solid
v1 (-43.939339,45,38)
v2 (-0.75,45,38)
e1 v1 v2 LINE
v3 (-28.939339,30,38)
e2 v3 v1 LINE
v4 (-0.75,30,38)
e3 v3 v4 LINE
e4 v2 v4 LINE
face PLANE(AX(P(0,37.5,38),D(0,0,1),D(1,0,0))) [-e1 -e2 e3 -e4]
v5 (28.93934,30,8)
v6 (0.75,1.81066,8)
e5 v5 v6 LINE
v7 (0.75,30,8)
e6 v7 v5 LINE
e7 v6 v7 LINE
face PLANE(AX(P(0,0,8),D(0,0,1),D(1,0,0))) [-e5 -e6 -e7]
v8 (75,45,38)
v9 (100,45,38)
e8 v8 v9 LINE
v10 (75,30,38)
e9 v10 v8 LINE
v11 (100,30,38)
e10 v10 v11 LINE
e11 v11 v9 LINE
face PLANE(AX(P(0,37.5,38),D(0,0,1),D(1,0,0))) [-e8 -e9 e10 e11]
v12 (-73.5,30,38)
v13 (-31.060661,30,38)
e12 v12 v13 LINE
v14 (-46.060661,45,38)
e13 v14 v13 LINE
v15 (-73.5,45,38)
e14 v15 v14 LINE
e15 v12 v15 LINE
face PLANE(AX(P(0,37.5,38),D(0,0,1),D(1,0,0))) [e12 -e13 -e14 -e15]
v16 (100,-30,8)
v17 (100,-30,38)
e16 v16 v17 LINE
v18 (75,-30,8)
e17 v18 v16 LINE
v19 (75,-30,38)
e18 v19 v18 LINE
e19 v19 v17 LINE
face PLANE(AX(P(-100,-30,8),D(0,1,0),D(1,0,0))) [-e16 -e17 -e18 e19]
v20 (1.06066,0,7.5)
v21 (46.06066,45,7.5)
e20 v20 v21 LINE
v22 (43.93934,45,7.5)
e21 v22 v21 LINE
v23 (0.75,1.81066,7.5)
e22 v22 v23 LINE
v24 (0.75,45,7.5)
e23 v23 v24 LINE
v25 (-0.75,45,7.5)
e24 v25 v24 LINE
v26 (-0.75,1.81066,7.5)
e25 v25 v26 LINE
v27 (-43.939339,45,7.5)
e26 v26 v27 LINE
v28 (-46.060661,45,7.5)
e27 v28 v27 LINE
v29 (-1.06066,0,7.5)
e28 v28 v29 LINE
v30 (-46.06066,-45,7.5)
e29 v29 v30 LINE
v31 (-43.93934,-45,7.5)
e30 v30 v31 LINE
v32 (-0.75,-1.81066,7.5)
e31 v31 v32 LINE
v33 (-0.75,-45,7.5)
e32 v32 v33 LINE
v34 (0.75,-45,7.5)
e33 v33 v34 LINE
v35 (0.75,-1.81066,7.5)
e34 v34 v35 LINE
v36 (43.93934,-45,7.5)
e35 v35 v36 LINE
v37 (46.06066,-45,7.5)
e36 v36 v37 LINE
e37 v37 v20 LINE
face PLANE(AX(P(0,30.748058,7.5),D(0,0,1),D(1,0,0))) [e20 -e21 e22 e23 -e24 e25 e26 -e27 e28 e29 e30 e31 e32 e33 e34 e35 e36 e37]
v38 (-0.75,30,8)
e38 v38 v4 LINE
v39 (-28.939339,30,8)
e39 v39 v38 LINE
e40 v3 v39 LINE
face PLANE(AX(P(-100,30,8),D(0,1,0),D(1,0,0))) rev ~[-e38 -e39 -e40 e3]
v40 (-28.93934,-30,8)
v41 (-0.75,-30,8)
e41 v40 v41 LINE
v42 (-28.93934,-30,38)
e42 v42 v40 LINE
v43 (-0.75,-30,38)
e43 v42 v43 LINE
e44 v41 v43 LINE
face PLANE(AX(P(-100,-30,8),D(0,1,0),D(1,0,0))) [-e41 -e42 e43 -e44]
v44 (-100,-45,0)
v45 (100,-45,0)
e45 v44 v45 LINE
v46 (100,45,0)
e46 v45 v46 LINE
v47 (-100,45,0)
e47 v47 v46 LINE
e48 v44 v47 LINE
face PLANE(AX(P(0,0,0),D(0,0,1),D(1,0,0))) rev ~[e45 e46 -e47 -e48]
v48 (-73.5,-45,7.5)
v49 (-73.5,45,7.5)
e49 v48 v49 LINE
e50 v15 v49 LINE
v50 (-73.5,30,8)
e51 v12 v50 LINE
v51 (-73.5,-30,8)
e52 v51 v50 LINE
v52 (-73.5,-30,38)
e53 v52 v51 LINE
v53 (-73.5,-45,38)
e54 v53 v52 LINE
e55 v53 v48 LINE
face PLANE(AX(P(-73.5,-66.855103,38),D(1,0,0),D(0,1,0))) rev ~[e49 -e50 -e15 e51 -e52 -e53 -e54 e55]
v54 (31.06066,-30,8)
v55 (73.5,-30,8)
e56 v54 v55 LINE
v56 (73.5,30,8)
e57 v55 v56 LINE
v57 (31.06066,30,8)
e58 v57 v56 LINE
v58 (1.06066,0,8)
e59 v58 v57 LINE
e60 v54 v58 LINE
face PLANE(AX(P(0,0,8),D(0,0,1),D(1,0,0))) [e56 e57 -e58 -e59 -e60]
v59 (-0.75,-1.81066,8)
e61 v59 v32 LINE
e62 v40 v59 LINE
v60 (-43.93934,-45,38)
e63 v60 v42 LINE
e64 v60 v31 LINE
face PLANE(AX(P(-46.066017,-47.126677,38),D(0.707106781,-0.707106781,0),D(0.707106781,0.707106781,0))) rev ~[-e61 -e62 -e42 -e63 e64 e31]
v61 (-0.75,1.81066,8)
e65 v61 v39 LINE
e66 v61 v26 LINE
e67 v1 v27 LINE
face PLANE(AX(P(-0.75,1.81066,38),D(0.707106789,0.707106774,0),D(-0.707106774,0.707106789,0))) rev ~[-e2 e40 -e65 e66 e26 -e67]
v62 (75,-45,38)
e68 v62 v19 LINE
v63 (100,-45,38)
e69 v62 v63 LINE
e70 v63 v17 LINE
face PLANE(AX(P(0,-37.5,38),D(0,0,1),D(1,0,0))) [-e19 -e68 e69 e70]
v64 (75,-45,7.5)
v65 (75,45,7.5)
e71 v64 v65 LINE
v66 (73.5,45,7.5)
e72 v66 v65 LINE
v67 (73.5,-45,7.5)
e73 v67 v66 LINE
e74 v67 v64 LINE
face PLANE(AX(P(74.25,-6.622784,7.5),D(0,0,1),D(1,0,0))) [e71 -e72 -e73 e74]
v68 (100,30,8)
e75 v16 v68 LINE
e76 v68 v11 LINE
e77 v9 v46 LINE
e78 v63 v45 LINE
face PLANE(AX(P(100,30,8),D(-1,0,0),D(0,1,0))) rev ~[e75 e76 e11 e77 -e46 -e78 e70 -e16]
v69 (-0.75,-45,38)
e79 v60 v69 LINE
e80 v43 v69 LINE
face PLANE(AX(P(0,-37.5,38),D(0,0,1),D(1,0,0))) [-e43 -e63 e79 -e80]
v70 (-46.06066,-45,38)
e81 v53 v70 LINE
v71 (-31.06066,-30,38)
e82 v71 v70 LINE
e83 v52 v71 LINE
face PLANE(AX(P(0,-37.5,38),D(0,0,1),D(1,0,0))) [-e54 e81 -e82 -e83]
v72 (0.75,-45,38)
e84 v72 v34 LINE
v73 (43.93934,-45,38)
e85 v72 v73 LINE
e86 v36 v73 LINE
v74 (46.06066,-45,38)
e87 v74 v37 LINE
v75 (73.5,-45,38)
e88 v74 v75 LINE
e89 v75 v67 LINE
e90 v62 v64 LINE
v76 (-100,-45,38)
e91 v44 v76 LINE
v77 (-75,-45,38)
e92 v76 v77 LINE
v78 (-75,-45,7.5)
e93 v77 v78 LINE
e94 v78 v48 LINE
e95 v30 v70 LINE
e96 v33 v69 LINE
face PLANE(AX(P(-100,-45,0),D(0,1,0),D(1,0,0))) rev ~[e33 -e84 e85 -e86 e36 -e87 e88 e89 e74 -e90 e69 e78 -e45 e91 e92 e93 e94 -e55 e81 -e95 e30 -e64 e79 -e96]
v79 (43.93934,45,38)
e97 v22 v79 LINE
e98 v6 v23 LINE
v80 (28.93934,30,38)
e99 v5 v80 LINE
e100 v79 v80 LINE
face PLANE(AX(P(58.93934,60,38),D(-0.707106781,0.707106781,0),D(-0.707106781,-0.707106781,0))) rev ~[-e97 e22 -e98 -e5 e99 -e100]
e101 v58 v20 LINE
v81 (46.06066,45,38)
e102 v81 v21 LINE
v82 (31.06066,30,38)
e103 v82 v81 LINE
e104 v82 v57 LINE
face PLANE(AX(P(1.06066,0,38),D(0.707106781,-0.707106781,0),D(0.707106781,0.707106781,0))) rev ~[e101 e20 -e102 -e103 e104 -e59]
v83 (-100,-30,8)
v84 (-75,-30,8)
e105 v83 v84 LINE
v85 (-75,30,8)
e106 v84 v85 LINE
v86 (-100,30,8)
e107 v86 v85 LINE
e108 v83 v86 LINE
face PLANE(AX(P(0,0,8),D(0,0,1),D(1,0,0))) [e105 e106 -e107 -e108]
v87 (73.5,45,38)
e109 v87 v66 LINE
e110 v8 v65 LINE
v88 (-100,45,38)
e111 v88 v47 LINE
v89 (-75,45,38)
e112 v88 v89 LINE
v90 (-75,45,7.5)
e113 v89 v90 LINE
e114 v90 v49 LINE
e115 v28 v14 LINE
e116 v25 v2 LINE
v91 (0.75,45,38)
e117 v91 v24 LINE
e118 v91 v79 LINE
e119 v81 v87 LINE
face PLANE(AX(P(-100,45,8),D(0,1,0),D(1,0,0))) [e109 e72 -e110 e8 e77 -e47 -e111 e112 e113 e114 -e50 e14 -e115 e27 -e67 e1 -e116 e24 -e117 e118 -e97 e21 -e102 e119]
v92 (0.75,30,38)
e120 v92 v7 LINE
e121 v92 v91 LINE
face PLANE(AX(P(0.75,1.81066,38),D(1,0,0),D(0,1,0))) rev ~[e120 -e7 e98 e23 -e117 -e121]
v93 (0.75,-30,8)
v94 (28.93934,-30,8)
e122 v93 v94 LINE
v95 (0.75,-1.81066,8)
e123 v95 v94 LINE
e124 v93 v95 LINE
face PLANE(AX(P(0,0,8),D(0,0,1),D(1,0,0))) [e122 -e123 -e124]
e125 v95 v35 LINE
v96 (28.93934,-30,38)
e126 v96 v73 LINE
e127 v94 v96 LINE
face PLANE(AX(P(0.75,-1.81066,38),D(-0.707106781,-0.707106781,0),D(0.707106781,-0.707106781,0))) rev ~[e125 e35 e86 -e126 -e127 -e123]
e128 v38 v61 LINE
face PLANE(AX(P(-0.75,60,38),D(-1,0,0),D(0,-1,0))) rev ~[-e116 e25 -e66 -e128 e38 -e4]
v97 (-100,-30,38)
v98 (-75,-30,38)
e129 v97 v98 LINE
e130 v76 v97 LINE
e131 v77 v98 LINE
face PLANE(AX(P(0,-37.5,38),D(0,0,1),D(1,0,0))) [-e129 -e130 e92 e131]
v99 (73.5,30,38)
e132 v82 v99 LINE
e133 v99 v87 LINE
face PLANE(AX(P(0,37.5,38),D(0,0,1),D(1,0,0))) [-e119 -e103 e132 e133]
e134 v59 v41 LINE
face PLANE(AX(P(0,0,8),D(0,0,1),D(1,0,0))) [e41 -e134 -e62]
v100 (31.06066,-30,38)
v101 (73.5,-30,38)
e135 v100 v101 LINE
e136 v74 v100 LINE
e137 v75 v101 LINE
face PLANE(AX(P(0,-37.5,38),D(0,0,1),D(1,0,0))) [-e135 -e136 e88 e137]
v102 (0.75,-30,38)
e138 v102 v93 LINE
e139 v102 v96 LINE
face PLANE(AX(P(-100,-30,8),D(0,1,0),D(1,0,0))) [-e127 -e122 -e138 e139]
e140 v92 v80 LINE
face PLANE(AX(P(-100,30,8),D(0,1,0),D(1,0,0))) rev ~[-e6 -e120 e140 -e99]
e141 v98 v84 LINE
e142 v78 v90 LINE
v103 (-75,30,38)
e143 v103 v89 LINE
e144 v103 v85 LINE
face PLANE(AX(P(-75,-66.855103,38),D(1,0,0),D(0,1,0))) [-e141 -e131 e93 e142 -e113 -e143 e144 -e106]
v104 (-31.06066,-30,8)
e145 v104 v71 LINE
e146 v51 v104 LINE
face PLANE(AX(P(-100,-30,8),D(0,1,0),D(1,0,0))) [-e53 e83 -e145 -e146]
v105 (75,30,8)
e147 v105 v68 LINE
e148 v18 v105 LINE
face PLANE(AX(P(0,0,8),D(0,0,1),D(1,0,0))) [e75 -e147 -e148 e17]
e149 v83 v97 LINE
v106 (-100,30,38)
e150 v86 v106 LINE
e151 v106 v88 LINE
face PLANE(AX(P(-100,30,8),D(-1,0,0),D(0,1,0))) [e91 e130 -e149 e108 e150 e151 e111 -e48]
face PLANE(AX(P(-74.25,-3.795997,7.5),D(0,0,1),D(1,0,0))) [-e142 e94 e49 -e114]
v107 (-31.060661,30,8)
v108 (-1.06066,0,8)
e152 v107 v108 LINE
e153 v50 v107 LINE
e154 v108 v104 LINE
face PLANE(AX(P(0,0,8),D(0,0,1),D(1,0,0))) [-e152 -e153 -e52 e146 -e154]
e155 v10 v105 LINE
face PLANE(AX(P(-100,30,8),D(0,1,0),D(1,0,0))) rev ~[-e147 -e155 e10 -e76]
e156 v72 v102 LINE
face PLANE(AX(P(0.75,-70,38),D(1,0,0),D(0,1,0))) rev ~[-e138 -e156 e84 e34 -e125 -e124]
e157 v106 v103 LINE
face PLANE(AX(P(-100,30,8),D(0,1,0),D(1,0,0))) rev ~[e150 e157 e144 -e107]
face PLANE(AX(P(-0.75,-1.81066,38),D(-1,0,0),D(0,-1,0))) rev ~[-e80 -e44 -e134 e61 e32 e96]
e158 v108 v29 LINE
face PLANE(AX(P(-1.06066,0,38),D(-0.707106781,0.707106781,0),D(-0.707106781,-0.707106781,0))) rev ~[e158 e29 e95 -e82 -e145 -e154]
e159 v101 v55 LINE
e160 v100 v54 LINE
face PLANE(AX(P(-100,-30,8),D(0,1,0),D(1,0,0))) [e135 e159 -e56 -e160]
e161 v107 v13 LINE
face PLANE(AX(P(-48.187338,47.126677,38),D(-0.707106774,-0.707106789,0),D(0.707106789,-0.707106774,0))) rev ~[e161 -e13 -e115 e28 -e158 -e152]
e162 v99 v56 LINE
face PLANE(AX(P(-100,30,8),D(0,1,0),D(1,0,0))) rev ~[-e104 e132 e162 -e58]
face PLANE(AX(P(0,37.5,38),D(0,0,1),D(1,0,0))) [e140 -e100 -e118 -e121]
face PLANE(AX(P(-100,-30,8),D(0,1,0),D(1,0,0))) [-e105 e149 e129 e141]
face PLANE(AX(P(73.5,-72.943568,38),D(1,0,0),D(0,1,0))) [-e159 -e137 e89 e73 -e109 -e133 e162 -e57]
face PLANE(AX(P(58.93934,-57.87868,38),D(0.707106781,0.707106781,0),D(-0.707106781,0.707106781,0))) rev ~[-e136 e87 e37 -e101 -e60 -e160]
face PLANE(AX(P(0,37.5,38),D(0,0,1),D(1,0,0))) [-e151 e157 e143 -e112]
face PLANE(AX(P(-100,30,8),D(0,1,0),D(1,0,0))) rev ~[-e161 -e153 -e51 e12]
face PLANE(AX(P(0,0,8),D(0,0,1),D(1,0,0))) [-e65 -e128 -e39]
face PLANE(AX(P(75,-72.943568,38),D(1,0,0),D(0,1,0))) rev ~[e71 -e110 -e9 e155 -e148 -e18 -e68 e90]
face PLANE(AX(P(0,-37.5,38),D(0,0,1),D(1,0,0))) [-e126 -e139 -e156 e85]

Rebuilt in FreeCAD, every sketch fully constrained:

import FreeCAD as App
import Part
import Sketcher
Q = App.Units.Quantity

doc = App.newDocument("Part")
body = doc.addObject("PartDesign::Body", "Body")

# Sketch on XY plane
sketch1 = doc.addObject("Sketcher::SketchObject", "Sketch")
body.addObject(sketch1)
sketch1.AttachmentSupport = (doc.XY_Plane, [""])
sketch1.MapMode = "FlatFace"
sketch1.addGeometry([
    Part.LineSegment(App.Vector(-100, 45, 0), App.Vector(-100, -45, 0)),
    Part.LineSegment(App.Vector(-100, -45, 0), App.Vector(100, -45, 0)),
    Part.LineSegment(App.Vector(100, -45, 0), App.Vector(100, 45, 0)),
    Part.LineSegment(App.Vector(100, 45, 0), App.Vector(-100, 45, 0)),
], False)
sketch1.addConstraint([
    Sketcher.Constraint("Coincident", 0, 2, 1, 1),
    Sketcher.Constraint("Coincident", 1, 2, 2, 1),
    Sketcher.Constraint("Coincident", 2, 2, 3, 1),
    Sketcher.Constraint("Coincident", 3, 2, 0, 1),
    Sketcher.Constraint("Vertical", 0),
    Sketcher.Constraint("Horizontal", 1),
    Sketcher.Constraint("Vertical", 2),
    Sketcher.Constraint("Horizontal", 3),
    Sketcher.Constraint("Symmetric", 0, 2, 2, 2, -1, 1),
    Sketcher.Constraint("DistanceX", 1, 1, 1, 2, Q("200 mm")),
    Sketcher.Constraint("DistanceY", 0, 2, 0, 1, Q("90 mm")),
])
pad1 = doc.addObject("PartDesign::Pad", "Pad")
body.addObject(pad1)
pad1.Profile = sketch1
pad1.Length = 8

# Sketch on XY plane
sketch2 = doc.addObject("Sketcher::SketchObject", "Sketch001")
body.addObject(sketch2)
sketch2.AttachmentSupport = (doc.XY_Plane, [""])
sketch2.MapMode = "FlatFace"
sketch2.AttachmentOffset = App.Placement(App.Vector(0, 0, 8), App.Rotation())
sketch2.addGeometry([
    Part.LineSegment(App.Vector(-100, 45, 0), App.Vector(-100, 30, 0)),  # 0
    Part.LineSegment(App.Vector(-100, 30, 0), App.Vector(100, 30, 0)),  # 1
    Part.LineSegment(App.Vector(100, 30, 0), App.Vector(100, 45, 0)),  # 2
    Part.LineSegment(App.Vector(100, 45, 0), App.Vector(-100, 45, 0)),  # 3
    Part.LineSegment(App.Vector(-100, -30, 0), App.Vector(-100, -45, 0)),  # 4
    Part.LineSegment(App.Vector(-100, -45, 0), App.Vector(100, -45, 0)),  # 5
    Part.LineSegment(App.Vector(100, -45, 0), App.Vector(100, -30, 0)),  # 6
    Part.LineSegment(App.Vector(100, -30, 0), App.Vector(-100, -30, 0)),  # 7
], False)
sketch2.addConstraint([
    Sketcher.Constraint("Coincident", 0, 2, 1, 1),
    Sketcher.Constraint("Coincident", 1, 2, 2, 1),
    Sketcher.Constraint("Coincident", 2, 2, 3, 1),
    Sketcher.Constraint("Coincident", 3, 2, 0, 1),
    Sketcher.Constraint("Coincident", 4, 2, 5, 1),
    Sketcher.Constraint("Coincident", 5, 2, 6, 1),
    Sketcher.Constraint("Coincident", 6, 2, 7, 1),
    Sketcher.Constraint("Coincident", 7, 2, 4, 1),
    Sketcher.Constraint("Vertical", 0),
    Sketcher.Constraint("Horizontal", 1),
    Sketcher.Constraint("Vertical", 2),
    Sketcher.Constraint("Horizontal", 3),
    Sketcher.Constraint("Vertical", 4),
    Sketcher.Constraint("Horizontal", 5),
    Sketcher.Constraint("Vertical", 6),
    Sketcher.Constraint("Horizontal", 7),
    Sketcher.Constraint("Symmetric", 2, 2, 4, 2, -1, 1),
    Sketcher.Constraint("Symmetric", 0, 2, 6, 2, -1, 1),
    Sketcher.Constraint("Vertical", 3, 2, 4, 2),
    Sketcher.Constraint("DistanceX", 1, 1, 1, 2, Q("200 mm")),
    Sketcher.Constraint("DistanceY", 0, 2, 0, 1, Q("15 mm")),
    Sketcher.Constraint("DistanceY", -1, 1, 0, 2, Q("30 mm")),
])
pad2 = doc.addObject("PartDesign::Pad", "Pad001")
body.addObject(pad2)
pad2.Profile = sketch2
pad2.Length = 30

# Sketch on XY plane
sketch3 = doc.addObject("Sketcher::SketchObject", "Sketch002")
body.addObject(sketch3)
sketch3.AttachmentSupport = (doc.XY_Plane, [""])
sketch3.MapMode = "FlatFace"
sketch3.AttachmentOffset = App.Placement(App.Vector(0, 0, 38), App.Rotation())
sketch3.addGeometry([
    Part.LineSegment(App.Vector(0.75, 60, 0), App.Vector(-0.75, 60, 0)),  # 0
    Part.LineSegment(App.Vector(-0.75, 60, 0), App.Vector(-0.75, 1.81066, 0)),  # 1
    Part.LineSegment(App.Vector(-0.75, 1.81066, 0), App.Vector(-47.126677, 48.187338, 0)),  # 2
    Part.LineSegment(App.Vector(-47.126677, 48.187338, 0), App.Vector(-48.187338, 47.126677, 0)),  # 3
    Part.LineSegment(App.Vector(-48.187338, 47.126677, 0), App.Vector(-1.06066, 0, 0)),  # 4
    Part.LineSegment(App.Vector(-1.06066, 0, 0), App.Vector(-47.126677, -46.066017, 0)),  # 5
    Part.LineSegment(App.Vector(-47.126677, -46.066017, 0), App.Vector(-46.066017, -47.126677, 0)),  # 6
    Part.LineSegment(App.Vector(-46.066017, -47.126677, 0), App.Vector(-0.75, -1.81066, 0)),  # 7
    Part.LineSegment(App.Vector(-0.75, -1.81066, 0), App.Vector(-0.75, -70, 0)),  # 8
    Part.LineSegment(App.Vector(-0.75, -70, 0), App.Vector(0.75, -70, 0)),  # 9
    Part.LineSegment(App.Vector(0.75, -70, 0), App.Vector(0.75, -1.81066, 0)),  # 10
    Part.LineSegment(App.Vector(0.75, -1.81066, 0), App.Vector(57.87868, -58.93934, 0)),  # 11
    Part.LineSegment(App.Vector(57.87868, -58.93934, 0), App.Vector(58.93934, -57.87868, 0)),  # 12
    Part.LineSegment(App.Vector(58.93934, -57.87868, 0), App.Vector(1.06066, 0, 0)),  # 13
    Part.LineSegment(App.Vector(1.06066, 0, 0), App.Vector(60, 58.93934, 0)),  # 14
    Part.LineSegment(App.Vector(60, 58.93934, 0), App.Vector(58.93934, 60, 0)),  # 15
    Part.LineSegment(App.Vector(58.93934, 60, 0), App.Vector(0.75, 1.81066, 0)),  # 16
    Part.LineSegment(App.Vector(0.75, 1.81066, 0), App.Vector(0.75, 60, 0)),  # 17
    Part.LineSegment(App.Vector(-75, 59.263109, 0), App.Vector(-75, -66.855103, 0)),  # 18
    Part.LineSegment(App.Vector(-75, -66.855103, 0), App.Vector(-73.5, -66.855103, 0)),  # 19
    Part.LineSegment(App.Vector(-73.5, -66.855103, 0), App.Vector(-73.5, 59.263109, 0)),  # 20
    Part.LineSegment(App.Vector(-73.5, 59.263109, 0), App.Vector(-75, 59.263109, 0)),  # 21
    Part.LineSegment(App.Vector(73.5, 59.698, 0), App.Vector(73.5, -72.943568, 0)),  # 22
    Part.LineSegment(App.Vector(73.5, -72.943568, 0), App.Vector(75, -72.943568, 0)),  # 23
    Part.LineSegment(App.Vector(75, -72.943568, 0), App.Vector(75, 59.698, 0)),  # 24
    Part.LineSegment(App.Vector(75, 59.698, 0), App.Vector(73.5, 59.698, 0)),  # 25
], False)
sketch3.addConstraint([
    Sketcher.Constraint("Coincident", 0, 2, 1, 1),
    Sketcher.Constraint("Coincident", 1, 2, 2, 1),
    Sketcher.Constraint("Coincident", 2, 2, 3, 1),
    Sketcher.Constraint("Coincident", 3, 2, 4, 1),
    Sketcher.Constraint("Coincident", 4, 2, 5, 1),
    Sketcher.Constraint("Coincident", 5, 2, 6, 1),
    Sketcher.Constraint("Coincident", 6, 2, 7, 1),
    Sketcher.Constraint("Coincident", 7, 2, 8, 1),
    Sketcher.Constraint("Coincident", 8, 2, 9, 1),
    Sketcher.Constraint("Coincident", 9, 2, 10, 1),
    Sketcher.Constraint("Coincident", 10, 2, 11, 1),
    Sketcher.Constraint("Coincident", 11, 2, 12, 1),
    Sketcher.Constraint("Coincident", 12, 2, 13, 1),
    Sketcher.Constraint("Coincident", 13, 2, 14, 1),
    Sketcher.Constraint("Coincident", 14, 2, 15, 1),
    Sketcher.Constraint("Coincident", 15, 2, 16, 1),
    Sketcher.Constraint("Coincident", 16, 2, 17, 1),
    Sketcher.Constraint("Coincident", 17, 2, 0, 1),
    Sketcher.Constraint("Coincident", 18, 2, 19, 1),
    Sketcher.Constraint("Coincident", 19, 2, 20, 1),
    Sketcher.Constraint("Coincident", 20, 2, 21, 1),
    Sketcher.Constraint("Coincident", 21, 2, 18, 1),
    Sketcher.Constraint("Coincident", 22, 2, 23, 1),
    Sketcher.Constraint("Coincident", 23, 2, 24, 1),
    Sketcher.Constraint("Coincident", 24, 2, 25, 1),
    Sketcher.Constraint("Coincident", 25, 2, 22, 1),
    Sketcher.Constraint("Horizontal", 0),
    Sketcher.Constraint("Vertical", 1),
    Sketcher.Constraint("Vertical", 8),
    Sketcher.Constraint("Horizontal", 9),
    Sketcher.Constraint("Vertical", 10),
    Sketcher.Constraint("Vertical", 17),
    Sketcher.Constraint("Vertical", 18),
    Sketcher.Constraint("Horizontal", 19),
    Sketcher.Constraint("Vertical", 20),
    Sketcher.Constraint("Horizontal", 21),
    Sketcher.Constraint("Vertical", 22),
    Sketcher.Constraint("Horizontal", 23),
    Sketcher.Constraint("Vertical", 24),
    Sketcher.Constraint("Horizontal", 25),
    Sketcher.Constraint("Symmetric", 1, 2, 10, 2, -1, 1),
    Sketcher.Constraint("Symmetric", 4, 2, 13, 2, -1, 1),
    Sketcher.Constraint("Symmetric", 7, 2, 16, 2, -1, 1),
    Sketcher.Constraint("Symmetric", 7, 2, 10, 2, -2),
    Sketcher.Constraint("PointOnObject", 4, 2, -1),
    Sketcher.Constraint("Perpendicular", 2, 3),
    Sketcher.Constraint("Perpendicular", 3, 4),
    Sketcher.Constraint("Perpendicular", 4, 5),
    Sketcher.Constraint("Perpendicular", 5, 6),
    Sketcher.Constraint("Perpendicular", 6, 7),
    Sketcher.Constraint("Perpendicular", 7, 11),
    Sketcher.Constraint("Perpendicular", 11, 12),
    Sketcher.Constraint("Perpendicular", 12, 13),
    Sketcher.Constraint("Perpendicular", 13, 14),
    Sketcher.Constraint("Perpendicular", 14, 15),
    Sketcher.Constraint("Perpendicular", 15, 16),
    Sketcher.Constraint("Horizontal", 0, 2, 15, 2),
    Sketcher.Constraint("Vertical", 2, 2, 5, 2),
    Sketcher.Constraint("Vertical", 12, 2, 15, 2),
    Sketcher.Constraint("Equal", 9, 19),
    Sketcher.Constraint("Equal", 21, 23),
    Sketcher.Constraint("Equal", 3, 6),
    Sketcher.Constraint("DistanceX", 0, 2, 0, 1, Q("1.5 mm")),
    Sketcher.Constraint("DistanceY", -1, 1, 0, 2, Q("60 mm")),
    Sketcher.Constraint("DistanceY", 8, 2, -1, 1, Q("70 mm")),
    Sketcher.Constraint("DistanceX", -1, 1, 14, 2, Q("60 mm")),
    Sketcher.Constraint("DistanceX", 18, 2, -1, 1, Q("75 mm")),
    Sketcher.Constraint("DistanceX", -1, 1, 23, 2, Q("75 mm")),
    Sketcher.Constraint("Distance", 3, Q("1.500001 mm")),
    Sketcher.Constraint("DistanceY", -1, 1, 24, 2, Q("59.698 mm")),
    Sketcher.Constraint("DistanceY", 22, 2, 22, 1, Q("132.641569 mm")),
    Sketcher.Constraint("DistanceY", 18, 2, 18, 1, Q("126.118213 mm")),
    Sketcher.Constraint("DistanceY", -1, 1, 20, 2, Q("59.263109 mm")),
    Sketcher.Constraint("DistanceY", 2, 2, 20, 2, Q("11.075772 mm")),
])
pocket1 = doc.addObject("PartDesign::Pocket", "Pocket")
body.addObject(pocket1)
pocket1.Profile = sketch3
pocket1.Length = 30.5

doc.recompute()
